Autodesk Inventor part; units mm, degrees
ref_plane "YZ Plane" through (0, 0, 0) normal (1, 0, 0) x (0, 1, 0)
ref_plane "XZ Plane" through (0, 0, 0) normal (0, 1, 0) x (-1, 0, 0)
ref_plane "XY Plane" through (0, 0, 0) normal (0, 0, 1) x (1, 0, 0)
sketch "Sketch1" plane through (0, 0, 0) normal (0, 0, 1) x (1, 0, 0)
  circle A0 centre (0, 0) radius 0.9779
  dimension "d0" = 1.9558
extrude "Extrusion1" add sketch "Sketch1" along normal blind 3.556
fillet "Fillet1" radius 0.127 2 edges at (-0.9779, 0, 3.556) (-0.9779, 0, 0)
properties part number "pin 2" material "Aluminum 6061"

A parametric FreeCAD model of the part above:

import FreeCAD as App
import Part
import Sketcher
from FreeCAD import Vector
Q = App.Units.Quantity


def edges_at(feature, points):
    """Names of the edges that pass closest to the given points."""
    edges = feature.Shape.Edges
    near = lambda p: min(range(len(edges)), key=lambda i: edges[i].distToShape(Part.Vertex(*p))[0])
    return sorted({f"Edge{near(p) + 1}" for p in points})

doc = App.newDocument("Part")
params = doc.addObject("Spreadsheet::Sheet", "Params")
for row, (alias, value) in enumerate([
    ("sketch1_diameter", "0.077 in"),
    ("pad1_length", "0.14 in"),
    ("fillet_radius", "0.005 in"),
], start=1):
    params.set(f"A{row}", alias)
    params.set(f"B{row}", "=" + value)
    params.setAlias(f"B{row}", alias)

body = doc.addObject("PartDesign::Body", "Body")

# Sketch on XY plane
sketch1 = doc.addObject("Sketcher::SketchObject", "Sketch")
body.addObject(sketch1)
sketch1.AttachmentSupport = (doc.XY_Plane, [""])
sketch1.MapMode = "FlatFace"
sketch1.addGeometry(Part.Circle(Vector(0, 0, 0), Vector(0, 0, 1), 1), False)
sketch1.addConstraint([
    Sketcher.Constraint("Coincident", 0, 3, -1, 1),
    Sketcher.Constraint("Diameter", 0, Q("0.077 in")),
])
sketch1.setExpression("Constraints[1]", "Params.sketch1_diameter")
pad1 = doc.addObject("PartDesign::Pad", "Pad")
body.addObject(pad1)
pad1.Profile = sketch1
pad1.setExpression("Length", "Params.pad1_length")
doc.recompute()

fillet = doc.addObject("PartDesign::Fillet", "Fillet")
body.addObject(fillet)
fillet.Base = (pad1, edges_at(pad1, [(-0.978, 0, 3.556), (-0.978, 0, 0)]))
fillet.setExpression("Radius", "Params.fillet_radius")

doc.recompute()
